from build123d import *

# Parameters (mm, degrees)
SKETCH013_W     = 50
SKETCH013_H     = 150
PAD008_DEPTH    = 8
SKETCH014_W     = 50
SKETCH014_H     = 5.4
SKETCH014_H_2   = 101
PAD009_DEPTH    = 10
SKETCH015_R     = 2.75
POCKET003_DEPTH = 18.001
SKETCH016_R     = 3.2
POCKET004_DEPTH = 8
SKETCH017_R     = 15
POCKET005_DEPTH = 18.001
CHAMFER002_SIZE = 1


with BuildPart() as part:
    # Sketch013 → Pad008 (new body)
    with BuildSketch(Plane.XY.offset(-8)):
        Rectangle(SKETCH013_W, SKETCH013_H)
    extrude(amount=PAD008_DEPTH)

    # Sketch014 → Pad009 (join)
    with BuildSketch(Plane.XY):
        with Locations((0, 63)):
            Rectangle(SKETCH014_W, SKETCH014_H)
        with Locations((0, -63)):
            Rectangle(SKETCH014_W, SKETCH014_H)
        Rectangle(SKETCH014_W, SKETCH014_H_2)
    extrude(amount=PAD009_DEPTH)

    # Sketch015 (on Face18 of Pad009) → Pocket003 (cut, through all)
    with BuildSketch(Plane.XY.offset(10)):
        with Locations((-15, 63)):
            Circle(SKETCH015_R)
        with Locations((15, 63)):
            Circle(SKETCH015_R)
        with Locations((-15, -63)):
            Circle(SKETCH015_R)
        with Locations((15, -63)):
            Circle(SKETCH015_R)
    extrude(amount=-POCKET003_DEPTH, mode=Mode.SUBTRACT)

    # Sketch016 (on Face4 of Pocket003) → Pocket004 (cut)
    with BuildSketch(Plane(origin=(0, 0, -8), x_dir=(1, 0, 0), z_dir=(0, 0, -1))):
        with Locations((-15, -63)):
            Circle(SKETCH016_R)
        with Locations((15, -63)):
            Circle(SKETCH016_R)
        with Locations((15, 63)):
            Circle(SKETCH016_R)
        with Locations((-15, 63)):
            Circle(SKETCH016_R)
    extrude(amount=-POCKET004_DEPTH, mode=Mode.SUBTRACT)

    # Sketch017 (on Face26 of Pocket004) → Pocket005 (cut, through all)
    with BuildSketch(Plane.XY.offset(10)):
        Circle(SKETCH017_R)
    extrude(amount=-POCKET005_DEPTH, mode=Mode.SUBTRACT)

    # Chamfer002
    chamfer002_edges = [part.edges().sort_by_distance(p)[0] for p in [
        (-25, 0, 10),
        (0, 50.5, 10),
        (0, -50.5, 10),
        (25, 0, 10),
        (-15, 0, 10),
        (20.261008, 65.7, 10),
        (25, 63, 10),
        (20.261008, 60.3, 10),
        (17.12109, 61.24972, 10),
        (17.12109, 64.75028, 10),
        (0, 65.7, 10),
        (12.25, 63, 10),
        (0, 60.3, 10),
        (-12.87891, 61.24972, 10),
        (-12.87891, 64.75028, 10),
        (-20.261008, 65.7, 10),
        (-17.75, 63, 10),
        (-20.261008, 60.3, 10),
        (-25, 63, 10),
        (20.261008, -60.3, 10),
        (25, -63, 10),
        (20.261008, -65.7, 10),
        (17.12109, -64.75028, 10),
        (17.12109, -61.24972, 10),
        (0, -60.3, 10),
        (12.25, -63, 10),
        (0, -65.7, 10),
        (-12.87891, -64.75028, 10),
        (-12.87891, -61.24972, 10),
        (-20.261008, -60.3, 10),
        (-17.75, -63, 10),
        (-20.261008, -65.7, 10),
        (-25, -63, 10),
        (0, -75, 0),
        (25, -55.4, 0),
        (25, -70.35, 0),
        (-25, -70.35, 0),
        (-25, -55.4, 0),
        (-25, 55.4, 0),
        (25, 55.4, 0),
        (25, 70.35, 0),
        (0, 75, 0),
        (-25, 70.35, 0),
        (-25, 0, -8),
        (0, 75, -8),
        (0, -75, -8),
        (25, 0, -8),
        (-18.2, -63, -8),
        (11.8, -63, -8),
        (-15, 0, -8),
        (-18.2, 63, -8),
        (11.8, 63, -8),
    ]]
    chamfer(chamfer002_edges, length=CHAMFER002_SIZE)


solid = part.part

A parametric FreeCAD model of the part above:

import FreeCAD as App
import Part
import Sketcher

V = App.Vector
Q = App.Units.Quantity


def edges_at(feature, points):
    """Names of the edges that pass closest to the given points."""
    edges = feature.Shape.Edges
    near = lambda p: min(range(len(edges)), key=lambda i: edges[i].distToShape(Part.Vertex(*p))[0])
    return sorted({f"Edge{near(p) + 1}" for p in points})

doc = App.newDocument("Part")
body = doc.addObject("PartDesign::Body", "Body")

sketch1 = body.newObject("Sketcher::SketchObject", "Sketch")
sketch1.AttachmentSupport = (doc.getObject("XY_Plane"), [""])
sketch1.MapMode = "FlatFace"
sketch1.AttachmentOffset = App.Placement(V(0, 0, -8), App.Rotation())
sketch1.addGeometry(Part.LineSegment(V(-25, 75, 0), V(-25, -75, 0)), False)
sketch1.addGeometry(Part.LineSegment(V(-25, -75, 0), V(25, -75, 0)), False)
sketch1.addGeometry(Part.LineSegment(V(25, -75, 0), V(25, 75, 0)), False)
sketch1.addGeometry(Part.LineSegment(V(25, 75, 0), V(-25, 75, 0)), False)
sketch1.addConstraint(Sketcher.Constraint("Coincident", 0, 2, 1, 1))
sketch1.addConstraint(Sketcher.Constraint("Coincident", 1, 2, 2, 1))
sketch1.addConstraint(Sketcher.Constraint("Coincident", 2, 2, 3, 1))
sketch1.addConstraint(Sketcher.Constraint("Coincident", 3, 2, 0, 1))
sketch1.addConstraint(Sketcher.Constraint("Vertical", 0))
sketch1.addConstraint(Sketcher.Constraint("Horizontal", 1))
sketch1.addConstraint(Sketcher.Constraint("Vertical", 2))
sketch1.addConstraint(Sketcher.Constraint("Horizontal", 3))
sketch1.addConstraint(Sketcher.Constraint("Symmetric", 0, 2, 2, 2, -1, 1))
sketch1.addConstraint(Sketcher.Constraint("DistanceX", 1, 1, 1, 2, Q("50 mm")))
sketch1.addConstraint(Sketcher.Constraint("DistanceY", 0, 2, 0, 1, Q("150 mm")))
pad1 = body.newObject("PartDesign::Pad", "Pad")
pad1.Profile = sketch1
pad1.Length = 8

sketch2 = body.newObject("Sketcher::SketchObject", "Sketch001")
sketch2.AttachmentSupport = (doc.getObject("XY_Plane"), [""])
sketch2.MapMode = "FlatFace"
sketch2.addGeometry(Part.LineSegment(V(-25, 66, 0), V(-25, 60, 0)), False)
sketch2.addGeometry(Part.LineSegment(V(-25, 60, 0), V(25, 60, 0)), False)
sketch2.addGeometry(Part.LineSegment(V(25, 60, 0), V(25, 66, 0)), False)
sketch2.addGeometry(Part.LineSegment(V(25, 66, 0), V(-25, 66, 0)), False)
sketch2.addGeometry(Part.LineSegment(V(-25, -60, 0), V(-25, -66, 0)), False)
sketch2.addGeometry(Part.LineSegment(V(-25, -66, 0), V(25, -66, 0)), False)
sketch2.addGeometry(Part.LineSegment(V(25, -66, 0), V(25, -60, 0)), False)
sketch2.addGeometry(Part.LineSegment(V(25, -60, 0), V(-25, -60, 0)), False)
sketch2.addGeometry(Part.LineSegment(V(-25, 50, 0), V(-25, -50, 0)), False)
sketch2.addGeometry(Part.LineSegment(V(-25, -50, 0), V(25, -50, 0)), False)
sketch2.addGeometry(Part.LineSegment(V(25, -50, 0), V(25, 50, 0)), False)
sketch2.addGeometry(Part.LineSegment(V(25, 50, 0), V(-25, 50, 0)), False)
sketch2.addConstraint(Sketcher.Constraint("Coincident", 0, 2, 1, 1))
sketch2.addConstraint(Sketcher.Constraint("Coincident", 1, 2, 2, 1))
sketch2.addConstraint(Sketcher.Constraint("Coincident", 2, 2, 3, 1))
sketch2.addConstraint(Sketcher.Constraint("Coincident", 3, 2, 0, 1))
sketch2.addConstraint(Sketcher.Constraint("Coincident", 4, 2, 5, 1))
sketch2.addConstraint(Sketcher.Constraint("Coincident", 5, 2, 6, 1))
sketch2.addConstraint(Sketcher.Constraint("Coincident", 6, 2, 7, 1))
sketch2.addConstraint(Sketcher.Constraint("Coincident", 7, 2, 4, 1))
sketch2.addConstraint(Sketcher.Constraint("Coincident", 8, 2, 9, 1))
sketch2.addConstraint(Sketcher.Constraint("Coincident", 9, 2, 10, 1))
sketch2.addConstraint(Sketcher.Constraint("Coincident", 10, 2, 11, 1))
sketch2.addConstraint(Sketcher.Constraint("Coincident", 11, 2, 8, 1))
sketch2.addConstraint(Sketcher.Constraint("Vertical", 0))
sketch2.addConstraint(Sketcher.Constraint("Horizontal", 1))
sketch2.addConstraint(Sketcher.Constraint("Vertical", 2))
sketch2.addConstraint(Sketcher.Constraint("Horizontal", 3))
sketch2.addConstraint(Sketcher.Constraint("Vertical", 4))
sketch2.addConstraint(Sketcher.Constraint("Horizontal", 5))
sketch2.addConstraint(Sketcher.Constraint("Vertical", 6))
sketch2.addConstraint(Sketcher.Constraint("Horizontal", 7))
sketch2.addConstraint(Sketcher.Constraint("Vertical", 8))
sketch2.addConstraint(Sketcher.Constraint("Horizontal", 9))
sketch2.addConstraint(Sketcher.Constraint("Vertical", 10))
sketch2.addConstraint(Sketcher.Constraint("Horizontal", 11))
sketch2.addConstraint(Sketcher.Constraint("Symmetric", 2, 2, 4, 2, -1, 1))
sketch2.addConstraint(Sketcher.Constraint("Symmetric", 0, 2, 6, 2, -1, 1))
sketch2.addConstraint(Sketcher.Constraint("Symmetric", 8, 2, 10, 2, -1, 1))
sketch2.addConstraint(Sketcher.Constraint("Vertical", 3, 2, 4, 2))
sketch2.addConstraint(Sketcher.Constraint("Vertical", 7, 2, 8, 2))
sketch2.addConstraint(Sketcher.Constraint("DistanceX", 1, 1, 1, 2, Q("50 mm")))
sketch2.addConstraint(Sketcher.Constraint("DistanceY", 8, 2, 8, 1, Q("101 mm")))
sketch2.addConstraint(Sketcher.Constraint("DistanceY", 0, 2, 0, 1, Q("5.4 mm")))
sketch2.addConstraint(Sketcher.Constraint("DistanceY", 4, 2, 0, 2, Q("126 mm")))
pad2 = body.newObject("PartDesign::Pad", "Pad001")
pad2.Profile = sketch2
pad2.Length = 10

sketch3 = body.newObject("Sketcher::SketchObject", "Sketch002")
sketch3.AttachmentSupport = (doc.getObject("XY_Plane"), [""])
sketch3.MapMode = "FlatFace"
sketch3.AttachmentOffset = App.Placement(V(0, 0, 10), App.Rotation())
sketch3.addGeometry(Part.Circle(V(-15, 63, 0), V(0, 0, 1), 2.8), False)
sketch3.addGeometry(Part.Circle(V(15, 63, 0), V(0, 0, 1), 2.8), False)
sketch3.addGeometry(Part.Circle(V(-15, -63, 0), V(0, 0, 1), 2.8), False)
sketch3.addGeometry(Part.Circle(V(15, -63, 0), V(0, 0, 1), 2.8), False)
sketch3.addConstraint(Sketcher.Constraint("Equal", 0, 1))
sketch3.addConstraint(Sketcher.Constraint("Equal", 1, 2))
sketch3.addConstraint(Sketcher.Constraint("Equal", 2, 3))
sketch3.addConstraint(Sketcher.Constraint("Symmetric", 1, 3, 2, 3, -1, 1))
sketch3.addConstraint(Sketcher.Constraint("Symmetric", 0, 3, 3, 3, -1, 1))
sketch3.addConstraint(Sketcher.Constraint("Symmetric", 0, 3, 1, 3, -2))
sketch3.addConstraint(Sketcher.Constraint("Diameter", 0, Q("5.5 mm")))
sketch3.addConstraint(Sketcher.Constraint("DistanceX", 0, 3, -1, 1, Q("15 mm")))
sketch3.addConstraint(Sketcher.Constraint("DistanceY", -1, 1, 0, 3, Q("63 mm")))
pocket1 = body.newObject("PartDesign::Pocket", "Pocket")
pocket1.Profile = sketch3
pocket1.Type = "ThroughAll"

sketch4 = body.newObject("Sketcher::SketchObject", "Sketch003")
sketch4.AttachmentSupport = (doc.getObject("XY_Plane"), [""])
sketch4.MapMode = "FlatFace"
sketch4.AttachmentOffset = App.Placement(V(0, 0, -8), App.Rotation())
sketch4.addGeometry(Part.Circle(V(-15, 63, 0), V(0, 0, 1), 3.2), False)
sketch4.addGeometry(Part.Circle(V(15, 63, 0), V(0, 0, 1), 3.2), False)
sketch4.addGeometry(Part.Circle(V(15, -63, 0), V(0, 0, 1), 3.2), False)
sketch4.addGeometry(Part.Circle(V(-15, -63, 0), V(0, 0, 1), 3.2), False)
sketch4.addConstraint(Sketcher.Constraint("Equal", 0, 1))
sketch4.addConstraint(Sketcher.Constraint("Equal", 1, 2))
sketch4.addConstraint(Sketcher.Constraint("Equal", 2, 3))
sketch4.addConstraint(Sketcher.Constraint("Symmetric", 0, 3, 2, 3, -1, 1))
sketch4.addConstraint(Sketcher.Constraint("Symmetric", 1, 3, 3, 3, -1, 1))
sketch4.addConstraint(Sketcher.Constraint("Symmetric", 0, 3, 1, 3, -2))
sketch4.addConstraint(Sketcher.Constraint("Diameter", 0, Q("6.4 mm")))
sketch4.addConstraint(Sketcher.Constraint("DistanceX", 0, 3, -1, 1, Q("15 mm")))
sketch4.addConstraint(Sketcher.Constraint("DistanceY", -1, 1, 0, 3, Q("63 mm")))
pocket2 = body.newObject("PartDesign::Pocket", "Pocket001")
pocket2.Profile = sketch4
pocket2.Length = 8
pocket2.Reversed = True

sketch5 = body.newObject("Sketcher::SketchObject", "Sketch004")
sketch5.AttachmentSupport = (doc.getObject("XY_Plane"), [""])
sketch5.MapMode = "FlatFace"
sketch5.AttachmentOffset = App.Placement(V(0, 0, 10), App.Rotation())
sketch5.addGeometry(Part.Circle(V(0, 0, 0), V(0, 0, 1), 15), False)
sketch5.addConstraint(Sketcher.Constraint("Coincident", 0, 3, -1, 1))
sketch5.addConstraint(Sketcher.Constraint("Diameter", 0, Q("30 mm")))
pocket3 = body.newObject("PartDesign::Pocket", "Pocket002")
pocket3.Profile = sketch5
pocket3.Type = "ThroughAll"
doc.recompute()

chamfer = body.newObject("PartDesign::Chamfer", "Chamfer")
chamfer.Base = (pocket3, edges_at(pocket3, [
    (-25, 0, 10),
    (0, 50.5, 10),
    (0, -50.5, 10),
    (25, 0, 10),
    (-15, 0, 10),
    (20.261, 65.7, 10),
    (25, 63, 10),
    (20.261, 60.3, 10),
    (17.75, 63, 10),
    (17.75, 63, 10),
    (0, 65.7, 10),
    (12.25, 63, 10),
    (0, 60.3, 10),
    (-12.25, 63, 10),
    (-12.25, 63, 10),
    (-20.261, 65.7, 10),
    (-17.75, 63, 10),
    (-20.261, 60.3, 10),
    (-25, 63, 10),
    (20.261, -60.3, 10),
    (25, -63, 10),
    (20.261, -65.7, 10),
    (17.75, -63, 10),
    (17.75, -63, 10),
    (0, -60.3, 10),
    (12.25, -63, 10),
    (0, -65.7, 10),
    (-12.25, -63, 10),
    (-12.25, -63, 10),
    (-20.261, -60.3, 10),
    (-17.75, -63, 10),
    (-20.261, -65.7, 10),
    (-25, -63, 10),
    (0, -75, 0),
    (25, -55.4, 0),
    (25, -70.35, 0),
    (-25, -70.35, 0),
    (-25, -55.4, 0),
    (-25, 55.4, 0),
    (25, 55.4, 0),
    (25, 70.35, 0),
    (0, 75, 0),
    (-25, 70.35, 0),
    (-25, 0, -8),
    (0, 75, -8),
    (0, -75, -8),
    (25, 0, -8),
    (-18.2, -63, -8),
    (11.8, -63, -8),
    (-15, 0, -8),
    (-18.2, 63, -8),
    (11.8, 63, -8),
]))
chamfer.Size = 1

doc.recompute()
